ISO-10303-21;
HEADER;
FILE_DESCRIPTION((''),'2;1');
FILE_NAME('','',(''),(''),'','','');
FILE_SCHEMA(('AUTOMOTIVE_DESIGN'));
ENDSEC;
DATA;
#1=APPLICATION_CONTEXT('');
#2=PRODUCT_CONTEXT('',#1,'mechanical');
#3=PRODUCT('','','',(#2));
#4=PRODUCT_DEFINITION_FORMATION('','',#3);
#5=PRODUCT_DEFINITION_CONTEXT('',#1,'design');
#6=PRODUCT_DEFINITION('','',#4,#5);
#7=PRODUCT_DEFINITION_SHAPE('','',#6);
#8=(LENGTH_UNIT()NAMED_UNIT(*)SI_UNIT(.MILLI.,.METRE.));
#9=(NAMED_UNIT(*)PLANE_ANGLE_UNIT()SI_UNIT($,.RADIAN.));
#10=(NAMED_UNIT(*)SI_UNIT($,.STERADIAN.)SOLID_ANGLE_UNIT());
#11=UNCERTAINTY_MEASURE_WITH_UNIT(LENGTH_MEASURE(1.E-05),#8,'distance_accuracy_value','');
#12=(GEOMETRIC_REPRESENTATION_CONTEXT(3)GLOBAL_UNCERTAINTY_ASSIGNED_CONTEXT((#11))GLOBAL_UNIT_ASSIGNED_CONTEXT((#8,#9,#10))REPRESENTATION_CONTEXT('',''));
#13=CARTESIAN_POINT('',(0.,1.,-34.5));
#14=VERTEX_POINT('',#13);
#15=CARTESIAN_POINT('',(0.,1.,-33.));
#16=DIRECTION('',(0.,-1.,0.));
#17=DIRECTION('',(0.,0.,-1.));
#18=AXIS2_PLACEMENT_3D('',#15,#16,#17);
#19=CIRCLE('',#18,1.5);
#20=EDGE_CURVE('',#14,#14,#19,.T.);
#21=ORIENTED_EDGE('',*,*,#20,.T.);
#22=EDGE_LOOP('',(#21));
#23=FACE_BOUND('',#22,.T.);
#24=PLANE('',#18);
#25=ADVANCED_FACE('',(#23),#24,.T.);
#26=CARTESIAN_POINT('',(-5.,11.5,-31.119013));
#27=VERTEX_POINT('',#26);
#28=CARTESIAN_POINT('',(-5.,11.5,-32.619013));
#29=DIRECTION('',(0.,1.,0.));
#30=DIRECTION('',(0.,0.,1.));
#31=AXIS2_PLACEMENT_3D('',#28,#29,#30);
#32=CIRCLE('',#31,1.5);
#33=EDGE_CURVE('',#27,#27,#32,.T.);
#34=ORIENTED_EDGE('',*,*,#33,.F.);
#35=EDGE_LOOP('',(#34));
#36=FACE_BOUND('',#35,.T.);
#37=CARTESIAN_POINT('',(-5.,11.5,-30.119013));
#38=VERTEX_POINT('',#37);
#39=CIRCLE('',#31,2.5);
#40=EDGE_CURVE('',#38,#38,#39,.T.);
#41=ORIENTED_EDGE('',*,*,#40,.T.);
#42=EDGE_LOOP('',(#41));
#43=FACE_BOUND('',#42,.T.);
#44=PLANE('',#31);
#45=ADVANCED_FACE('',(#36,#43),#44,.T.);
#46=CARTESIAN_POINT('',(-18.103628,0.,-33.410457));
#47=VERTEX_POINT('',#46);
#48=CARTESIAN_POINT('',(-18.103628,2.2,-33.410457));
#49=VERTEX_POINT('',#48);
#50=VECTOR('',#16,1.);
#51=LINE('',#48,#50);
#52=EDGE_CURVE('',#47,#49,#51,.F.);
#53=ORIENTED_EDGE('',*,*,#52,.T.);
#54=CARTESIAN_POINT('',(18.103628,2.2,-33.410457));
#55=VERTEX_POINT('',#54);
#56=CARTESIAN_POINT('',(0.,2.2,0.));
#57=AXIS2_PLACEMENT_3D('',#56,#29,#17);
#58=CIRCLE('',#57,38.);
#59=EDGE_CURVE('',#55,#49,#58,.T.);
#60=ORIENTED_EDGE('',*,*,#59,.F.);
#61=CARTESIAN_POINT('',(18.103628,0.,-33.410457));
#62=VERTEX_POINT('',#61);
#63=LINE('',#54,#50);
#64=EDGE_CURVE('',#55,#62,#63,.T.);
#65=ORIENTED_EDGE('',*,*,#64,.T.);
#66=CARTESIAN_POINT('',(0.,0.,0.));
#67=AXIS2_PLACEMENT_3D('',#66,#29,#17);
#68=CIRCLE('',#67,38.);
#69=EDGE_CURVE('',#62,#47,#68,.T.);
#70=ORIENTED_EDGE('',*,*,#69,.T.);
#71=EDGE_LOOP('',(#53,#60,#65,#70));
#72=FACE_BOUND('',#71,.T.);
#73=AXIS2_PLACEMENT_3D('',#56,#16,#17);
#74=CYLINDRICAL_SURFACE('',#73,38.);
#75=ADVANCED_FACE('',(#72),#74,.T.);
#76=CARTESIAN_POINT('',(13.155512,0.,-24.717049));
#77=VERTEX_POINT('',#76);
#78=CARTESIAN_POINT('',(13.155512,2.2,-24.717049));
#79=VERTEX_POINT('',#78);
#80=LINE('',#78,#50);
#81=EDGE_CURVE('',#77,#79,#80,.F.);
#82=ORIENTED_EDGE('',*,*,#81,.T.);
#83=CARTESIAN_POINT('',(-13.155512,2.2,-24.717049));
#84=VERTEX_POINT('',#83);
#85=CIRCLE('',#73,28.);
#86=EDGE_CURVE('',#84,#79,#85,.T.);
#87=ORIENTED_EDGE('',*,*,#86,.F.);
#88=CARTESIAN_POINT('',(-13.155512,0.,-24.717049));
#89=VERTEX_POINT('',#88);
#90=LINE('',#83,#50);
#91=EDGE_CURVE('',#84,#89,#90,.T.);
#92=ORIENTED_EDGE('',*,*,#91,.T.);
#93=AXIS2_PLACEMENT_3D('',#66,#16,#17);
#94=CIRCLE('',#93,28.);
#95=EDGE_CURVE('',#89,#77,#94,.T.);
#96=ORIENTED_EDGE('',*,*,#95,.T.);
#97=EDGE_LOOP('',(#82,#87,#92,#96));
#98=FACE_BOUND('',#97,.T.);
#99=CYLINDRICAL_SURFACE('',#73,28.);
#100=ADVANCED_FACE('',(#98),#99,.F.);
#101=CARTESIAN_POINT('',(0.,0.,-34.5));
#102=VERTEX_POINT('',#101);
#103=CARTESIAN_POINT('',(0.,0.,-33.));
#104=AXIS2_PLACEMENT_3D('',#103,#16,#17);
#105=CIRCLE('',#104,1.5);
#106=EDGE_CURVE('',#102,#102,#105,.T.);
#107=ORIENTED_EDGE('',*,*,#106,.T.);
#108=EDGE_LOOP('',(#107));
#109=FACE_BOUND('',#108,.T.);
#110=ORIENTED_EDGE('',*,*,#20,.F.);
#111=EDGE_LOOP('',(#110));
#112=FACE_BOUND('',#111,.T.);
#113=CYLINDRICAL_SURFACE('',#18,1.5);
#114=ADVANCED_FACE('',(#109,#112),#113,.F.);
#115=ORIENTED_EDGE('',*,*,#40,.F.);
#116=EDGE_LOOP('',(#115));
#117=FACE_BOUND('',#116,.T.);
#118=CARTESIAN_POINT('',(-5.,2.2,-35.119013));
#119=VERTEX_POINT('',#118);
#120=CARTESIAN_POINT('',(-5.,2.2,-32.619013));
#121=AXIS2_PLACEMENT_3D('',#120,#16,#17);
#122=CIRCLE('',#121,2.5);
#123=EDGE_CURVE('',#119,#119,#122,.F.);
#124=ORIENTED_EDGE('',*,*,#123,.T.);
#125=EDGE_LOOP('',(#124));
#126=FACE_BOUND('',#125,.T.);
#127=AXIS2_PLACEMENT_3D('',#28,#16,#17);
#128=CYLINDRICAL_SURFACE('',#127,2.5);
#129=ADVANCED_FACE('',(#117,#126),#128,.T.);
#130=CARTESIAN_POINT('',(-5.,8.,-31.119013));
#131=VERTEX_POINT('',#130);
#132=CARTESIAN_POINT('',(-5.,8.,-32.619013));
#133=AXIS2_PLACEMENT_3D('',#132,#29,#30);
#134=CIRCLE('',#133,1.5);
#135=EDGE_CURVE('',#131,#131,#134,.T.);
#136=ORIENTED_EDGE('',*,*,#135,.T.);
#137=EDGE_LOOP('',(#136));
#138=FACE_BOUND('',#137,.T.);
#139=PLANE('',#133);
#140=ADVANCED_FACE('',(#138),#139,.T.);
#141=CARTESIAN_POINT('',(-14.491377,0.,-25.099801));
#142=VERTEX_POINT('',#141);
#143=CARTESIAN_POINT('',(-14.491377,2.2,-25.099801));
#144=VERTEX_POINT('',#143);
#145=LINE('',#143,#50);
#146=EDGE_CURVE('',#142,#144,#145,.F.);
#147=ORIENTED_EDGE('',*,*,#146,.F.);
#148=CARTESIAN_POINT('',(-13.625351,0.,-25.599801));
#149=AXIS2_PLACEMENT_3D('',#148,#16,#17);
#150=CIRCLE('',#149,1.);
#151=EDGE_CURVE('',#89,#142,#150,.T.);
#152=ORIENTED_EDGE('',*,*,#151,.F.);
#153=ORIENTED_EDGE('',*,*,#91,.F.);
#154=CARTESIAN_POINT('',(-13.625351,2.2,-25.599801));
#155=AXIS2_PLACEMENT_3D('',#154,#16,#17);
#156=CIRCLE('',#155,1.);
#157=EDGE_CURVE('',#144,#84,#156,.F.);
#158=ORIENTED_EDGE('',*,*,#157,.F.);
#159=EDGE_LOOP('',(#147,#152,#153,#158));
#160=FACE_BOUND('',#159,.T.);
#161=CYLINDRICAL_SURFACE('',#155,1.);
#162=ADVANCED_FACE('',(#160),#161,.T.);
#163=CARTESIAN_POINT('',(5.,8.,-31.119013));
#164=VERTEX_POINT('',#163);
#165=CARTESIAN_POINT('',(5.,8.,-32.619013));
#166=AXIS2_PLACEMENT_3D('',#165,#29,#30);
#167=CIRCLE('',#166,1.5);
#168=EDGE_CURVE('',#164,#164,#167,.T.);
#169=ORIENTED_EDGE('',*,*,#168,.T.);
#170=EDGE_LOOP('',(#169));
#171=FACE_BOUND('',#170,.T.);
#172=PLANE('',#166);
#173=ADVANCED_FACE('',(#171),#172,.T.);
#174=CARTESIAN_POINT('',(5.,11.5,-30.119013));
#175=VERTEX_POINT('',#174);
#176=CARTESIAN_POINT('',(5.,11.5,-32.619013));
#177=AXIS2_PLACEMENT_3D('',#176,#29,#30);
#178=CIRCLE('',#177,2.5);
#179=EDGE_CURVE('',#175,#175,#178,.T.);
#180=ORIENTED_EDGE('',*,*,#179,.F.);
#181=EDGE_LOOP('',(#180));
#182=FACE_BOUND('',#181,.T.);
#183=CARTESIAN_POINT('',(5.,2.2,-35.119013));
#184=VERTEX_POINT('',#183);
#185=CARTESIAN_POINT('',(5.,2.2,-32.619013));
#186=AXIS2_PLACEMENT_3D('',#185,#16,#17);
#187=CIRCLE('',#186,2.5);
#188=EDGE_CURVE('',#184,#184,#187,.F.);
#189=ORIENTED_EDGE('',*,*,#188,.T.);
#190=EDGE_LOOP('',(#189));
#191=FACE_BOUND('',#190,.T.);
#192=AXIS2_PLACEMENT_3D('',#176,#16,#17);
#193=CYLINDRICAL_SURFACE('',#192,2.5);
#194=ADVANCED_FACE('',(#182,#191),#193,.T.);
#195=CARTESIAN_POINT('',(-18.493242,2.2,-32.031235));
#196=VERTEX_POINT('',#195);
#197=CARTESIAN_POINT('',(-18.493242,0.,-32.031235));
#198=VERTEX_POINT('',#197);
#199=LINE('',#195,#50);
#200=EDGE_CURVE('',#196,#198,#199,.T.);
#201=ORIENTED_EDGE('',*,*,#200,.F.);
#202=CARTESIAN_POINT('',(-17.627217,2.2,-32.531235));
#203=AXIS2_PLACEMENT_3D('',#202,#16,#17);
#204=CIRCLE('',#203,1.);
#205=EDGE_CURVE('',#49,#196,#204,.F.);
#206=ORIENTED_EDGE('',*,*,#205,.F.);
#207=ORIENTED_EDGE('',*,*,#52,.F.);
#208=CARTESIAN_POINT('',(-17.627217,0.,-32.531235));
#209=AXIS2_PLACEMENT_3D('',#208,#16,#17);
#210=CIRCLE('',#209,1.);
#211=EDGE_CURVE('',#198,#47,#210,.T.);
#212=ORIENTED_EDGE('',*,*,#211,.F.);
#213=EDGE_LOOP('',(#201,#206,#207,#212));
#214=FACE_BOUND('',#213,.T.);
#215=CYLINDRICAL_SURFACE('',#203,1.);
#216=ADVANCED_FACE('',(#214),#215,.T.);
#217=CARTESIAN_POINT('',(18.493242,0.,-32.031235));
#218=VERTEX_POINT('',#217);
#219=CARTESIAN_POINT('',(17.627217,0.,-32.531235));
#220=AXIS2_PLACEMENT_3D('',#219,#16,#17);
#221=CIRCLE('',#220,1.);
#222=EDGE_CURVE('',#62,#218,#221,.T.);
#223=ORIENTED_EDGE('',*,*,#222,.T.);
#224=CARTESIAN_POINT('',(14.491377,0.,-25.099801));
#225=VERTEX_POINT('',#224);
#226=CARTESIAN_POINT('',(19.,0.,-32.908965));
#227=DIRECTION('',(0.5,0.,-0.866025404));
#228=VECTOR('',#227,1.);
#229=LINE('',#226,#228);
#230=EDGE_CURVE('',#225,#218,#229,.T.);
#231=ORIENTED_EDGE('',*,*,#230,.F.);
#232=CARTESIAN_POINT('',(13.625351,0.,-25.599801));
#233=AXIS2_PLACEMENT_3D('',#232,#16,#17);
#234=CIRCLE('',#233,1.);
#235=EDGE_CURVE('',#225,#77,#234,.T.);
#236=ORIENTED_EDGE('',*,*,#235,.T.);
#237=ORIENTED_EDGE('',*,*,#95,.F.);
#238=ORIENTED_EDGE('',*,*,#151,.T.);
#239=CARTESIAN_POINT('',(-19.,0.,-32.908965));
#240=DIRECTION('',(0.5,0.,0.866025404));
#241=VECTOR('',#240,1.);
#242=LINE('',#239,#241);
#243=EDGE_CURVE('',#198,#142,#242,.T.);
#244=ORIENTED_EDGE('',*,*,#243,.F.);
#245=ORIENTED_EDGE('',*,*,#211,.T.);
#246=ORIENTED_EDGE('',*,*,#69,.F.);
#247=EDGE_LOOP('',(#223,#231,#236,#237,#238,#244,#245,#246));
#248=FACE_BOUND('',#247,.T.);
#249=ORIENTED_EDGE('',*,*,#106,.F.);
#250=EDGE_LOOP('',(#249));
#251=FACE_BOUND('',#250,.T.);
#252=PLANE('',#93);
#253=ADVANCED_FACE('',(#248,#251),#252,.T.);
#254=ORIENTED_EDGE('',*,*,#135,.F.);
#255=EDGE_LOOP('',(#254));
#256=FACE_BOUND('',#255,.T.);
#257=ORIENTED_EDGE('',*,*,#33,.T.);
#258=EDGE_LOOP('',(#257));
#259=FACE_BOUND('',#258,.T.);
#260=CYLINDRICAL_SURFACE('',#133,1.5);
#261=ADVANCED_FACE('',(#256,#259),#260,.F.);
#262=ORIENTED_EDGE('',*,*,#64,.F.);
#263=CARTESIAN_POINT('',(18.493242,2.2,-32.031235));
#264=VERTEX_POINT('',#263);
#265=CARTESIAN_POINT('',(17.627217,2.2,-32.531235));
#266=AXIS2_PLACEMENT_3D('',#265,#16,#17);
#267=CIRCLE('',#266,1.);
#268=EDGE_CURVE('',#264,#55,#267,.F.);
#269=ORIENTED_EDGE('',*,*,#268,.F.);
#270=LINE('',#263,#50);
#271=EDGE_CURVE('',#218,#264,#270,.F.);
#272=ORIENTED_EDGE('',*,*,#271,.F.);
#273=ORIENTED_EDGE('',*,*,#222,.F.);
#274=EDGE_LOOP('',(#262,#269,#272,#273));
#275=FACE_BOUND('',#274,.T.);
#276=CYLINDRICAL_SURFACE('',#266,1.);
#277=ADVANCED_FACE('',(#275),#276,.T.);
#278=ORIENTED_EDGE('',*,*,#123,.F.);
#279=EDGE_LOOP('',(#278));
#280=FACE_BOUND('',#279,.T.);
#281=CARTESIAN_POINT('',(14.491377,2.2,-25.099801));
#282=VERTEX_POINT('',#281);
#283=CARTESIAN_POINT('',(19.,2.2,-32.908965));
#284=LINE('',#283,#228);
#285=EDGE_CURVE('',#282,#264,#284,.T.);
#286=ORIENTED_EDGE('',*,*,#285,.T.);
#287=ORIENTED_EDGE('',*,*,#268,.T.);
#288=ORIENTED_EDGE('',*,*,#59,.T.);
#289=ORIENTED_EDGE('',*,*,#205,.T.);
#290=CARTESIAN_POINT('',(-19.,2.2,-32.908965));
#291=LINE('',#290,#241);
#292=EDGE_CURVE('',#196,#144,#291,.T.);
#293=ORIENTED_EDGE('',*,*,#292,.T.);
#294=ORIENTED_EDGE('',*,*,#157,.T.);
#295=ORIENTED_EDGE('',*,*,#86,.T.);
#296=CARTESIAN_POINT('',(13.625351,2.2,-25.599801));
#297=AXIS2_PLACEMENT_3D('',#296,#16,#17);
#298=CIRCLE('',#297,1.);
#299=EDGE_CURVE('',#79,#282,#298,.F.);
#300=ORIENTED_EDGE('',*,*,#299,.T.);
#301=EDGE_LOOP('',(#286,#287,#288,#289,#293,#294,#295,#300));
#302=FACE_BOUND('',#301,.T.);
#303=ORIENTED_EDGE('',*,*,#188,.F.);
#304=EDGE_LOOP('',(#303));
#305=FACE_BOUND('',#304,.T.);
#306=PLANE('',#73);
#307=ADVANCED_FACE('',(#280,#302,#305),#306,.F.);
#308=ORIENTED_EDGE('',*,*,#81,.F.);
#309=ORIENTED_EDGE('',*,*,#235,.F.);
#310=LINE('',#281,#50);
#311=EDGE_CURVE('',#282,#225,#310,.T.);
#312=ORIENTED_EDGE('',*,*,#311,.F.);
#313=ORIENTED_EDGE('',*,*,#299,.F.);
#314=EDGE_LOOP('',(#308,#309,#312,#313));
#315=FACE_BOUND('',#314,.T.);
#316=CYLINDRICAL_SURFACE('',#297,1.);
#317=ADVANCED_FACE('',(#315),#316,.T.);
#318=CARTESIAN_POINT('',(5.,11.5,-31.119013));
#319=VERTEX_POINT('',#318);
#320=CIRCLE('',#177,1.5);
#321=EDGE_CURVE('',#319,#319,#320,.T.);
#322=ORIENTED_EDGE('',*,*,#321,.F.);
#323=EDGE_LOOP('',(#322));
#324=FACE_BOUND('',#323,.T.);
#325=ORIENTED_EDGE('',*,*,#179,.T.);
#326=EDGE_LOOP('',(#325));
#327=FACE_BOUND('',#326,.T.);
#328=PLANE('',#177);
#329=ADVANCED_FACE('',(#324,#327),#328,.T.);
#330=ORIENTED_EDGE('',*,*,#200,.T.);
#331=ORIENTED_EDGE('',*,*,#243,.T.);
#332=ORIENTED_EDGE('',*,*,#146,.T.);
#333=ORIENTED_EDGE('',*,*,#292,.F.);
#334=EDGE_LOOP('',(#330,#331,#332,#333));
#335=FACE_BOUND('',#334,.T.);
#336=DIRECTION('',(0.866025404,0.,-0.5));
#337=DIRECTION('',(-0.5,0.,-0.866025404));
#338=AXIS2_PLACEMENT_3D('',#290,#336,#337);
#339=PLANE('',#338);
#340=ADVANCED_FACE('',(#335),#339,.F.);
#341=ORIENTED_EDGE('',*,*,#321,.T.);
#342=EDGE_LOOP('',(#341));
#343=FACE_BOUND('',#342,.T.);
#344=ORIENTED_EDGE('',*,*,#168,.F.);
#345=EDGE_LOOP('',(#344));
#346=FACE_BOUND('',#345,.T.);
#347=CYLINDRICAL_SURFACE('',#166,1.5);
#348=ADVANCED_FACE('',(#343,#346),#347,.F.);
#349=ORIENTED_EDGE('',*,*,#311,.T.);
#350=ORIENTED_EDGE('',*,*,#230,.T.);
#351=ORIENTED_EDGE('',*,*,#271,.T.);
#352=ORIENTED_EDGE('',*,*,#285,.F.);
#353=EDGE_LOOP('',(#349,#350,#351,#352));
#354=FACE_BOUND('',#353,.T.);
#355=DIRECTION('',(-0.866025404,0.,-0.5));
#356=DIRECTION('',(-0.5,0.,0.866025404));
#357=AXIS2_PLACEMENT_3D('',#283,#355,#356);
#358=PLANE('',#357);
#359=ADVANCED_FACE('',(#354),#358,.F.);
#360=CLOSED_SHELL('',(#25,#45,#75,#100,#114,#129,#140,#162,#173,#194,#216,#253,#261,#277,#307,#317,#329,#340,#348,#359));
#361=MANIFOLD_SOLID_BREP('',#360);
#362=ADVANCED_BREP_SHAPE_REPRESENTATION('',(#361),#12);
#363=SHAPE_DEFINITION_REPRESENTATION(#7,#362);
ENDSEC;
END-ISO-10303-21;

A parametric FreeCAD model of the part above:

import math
import FreeCAD as App
import Part
import Sketcher
Q = App.Units.Quantity


def edges_at(feature, points):
    """Names of the edges that pass closest to the given points."""
    edges = feature.Shape.Edges
    near = lambda p: min(range(len(edges)), key=lambda i: edges[i].distToShape(Part.Vertex(*p))[0])
    return sorted({f"Edge{near(p) + 1}" for p in points})

doc = App.newDocument("Part")
body = doc.addObject("PartDesign::Body", "Body")

# Sketch on XZ plane
sketch1 = body.newObject("Sketcher::SketchObject", "Sketch")
sketch1.AttachmentSupport = (doc.getObject("XZ_Plane"), [""])
sketch1.MapMode = "FlatFace"
sketch1.addGeometry([
    Part.LineSegment(App.Vector(-19, -33, 0), App.Vector(-14, -24, 0)),
    Part.ArcOfCircle(Part.Circle(App.Vector(0, 0, 0), App.Vector(0, 0, 1), 28), math.radians(-120), math.radians(-60)),
    Part.LineSegment(App.Vector(14, -24, 0), App.Vector(19, -33, 0)),
    Part.ArcOfCircle(Part.Circle(App.Vector(0, 0, 0), App.Vector(0, 0, 1), 38), math.radians(-120), math.radians(-60)),
], False)
sketch1.addConstraint([
    Sketcher.Constraint("Coincident", 0, 2, 1, 1),
    Sketcher.Constraint("Coincident", 1, 2, 2, 1),
    Sketcher.Constraint("Coincident", 2, 2, 3, 2),
    Sketcher.Constraint("Coincident", 3, 1, 0, 1),
    Sketcher.Constraint("Coincident", 1, 3, -1, 1),
    Sketcher.Constraint("Coincident", 3, 3, -1, 1),
    Sketcher.Constraint("Horizontal", 0, 2, 1, 2),
    Sketcher.Constraint("Horizontal", 2, 2, 3, 1),
    Sketcher.Constraint("Radius", 1, Q("28 mm")),
    Sketcher.Constraint("Radius", 3, Q("38 mm")),
    Sketcher.Constraint("Angle", 0, Q("60 deg")),
    Sketcher.Constraint("DistanceX", 0, 2, -1, 1, Q("14 mm")),
])
pad1 = body.newObject("PartDesign::Pad", "Pad")
pad1.Profile = sketch1
pad1.Length = 2.2
pad1.Reversed = True

# Sketch on XZ plane
sketch2 = body.newObject("Sketcher::SketchObject", "Sketch001")
sketch2.AttachmentSupport = (doc.getObject("XZ_Plane"), [""])
sketch2.MapMode = "FlatFace"
sketch2.AttachmentOffset = App.Placement(App.Vector(0, 0, -2.2), App.Rotation())
sketch2.addGeometry([
    Part.Circle(App.Vector(-5, -32.6, 0), App.Vector(0, 0, 1), 2.5),
    Part.Circle(App.Vector(5, -32.6, 0), App.Vector(0, 0, 1), 2.5),
], False)
sketch2.addConstraint([
    Sketcher.Constraint("Equal", 0, 1),
    Sketcher.Constraint("Symmetric", 0, 3, 1, 3, -2),
    Sketcher.Constraint("Diameter", 0, Q("5 mm")),
    Sketcher.Constraint("DistanceX", 0, 3, -1, 1, Q("5 mm")),
    Sketcher.Constraint("DistanceY", 0, 3, -1, 1, Q("32.619013 mm")),
])
pad2 = body.newObject("PartDesign::Pad", "Pad001")
pad2.Profile = sketch2
pad2.Length = 9.3
pad2.Reversed = True

# Sketch on XZ plane
sketch3 = body.newObject("Sketcher::SketchObject", "Sketch002")
sketch3.AttachmentSupport = (doc.getObject("XZ_Plane"), [""])
sketch3.MapMode = "FlatFace"
sketch3.AttachmentOffset = App.Placement(App.Vector(0, 0, -11.5), App.Rotation())
sketch3.addGeometry([
    Part.Circle(App.Vector(-5, -32.6, 0), App.Vector(0, 0, 1), 1.5),
    Part.Circle(App.Vector(5, -32.6, 0), App.Vector(0, 0, 1), 1.5),
], False)
sketch3.addConstraint([
    Sketcher.Constraint("Equal", 0, 1),
    Sketcher.Constraint("Symmetric", 0, 3, 1, 3, -2),
    Sketcher.Constraint("Diameter", 0, Q("3 mm")),
    Sketcher.Constraint("DistanceX", 0, 3, -1, 1, Q("5 mm")),
    Sketcher.Constraint("DistanceY", 0, 3, -1, 1, Q("32.619013 mm")),
])
pocket1 = body.newObject("PartDesign::Pocket", "Pocket")
pocket1.Profile = sketch3
pocket1.Length = 3.5
pocket1.Reversed = True

# Sketch on XZ plane
sketch4 = body.newObject("Sketcher::SketchObject", "Sketch003")
sketch4.AttachmentSupport = (doc.getObject("XZ_Plane"), [""])
sketch4.MapMode = "FlatFace"
sketch4.addGeometry(Part.Circle(App.Vector(0, -33, 0), App.Vector(0, 0, 1), 1.5), False)
sketch4.addConstraint([
    Sketcher.Constraint("PointOnObject", 0, 3, -2),
    Sketcher.Constraint("Diameter", 0, Q("3 mm")),
    Sketcher.Constraint("DistanceY", 0, 3, -1, 1, Q("33 mm")),
])
pocket2 = body.newObject("PartDesign::Pocket", "Pocket001")
pocket2.Profile = sketch4
pocket2.Length = 1
doc.recompute()

fillet = body.newObject("PartDesign::Fillet", "Fillet")
fillet.Base = (pocket2, edges_at(pocket2, [
    (19, 1.1, -32.909),
    (14, 1.1, -24.249),
    (-14, 1.1, -24.249),
    (-19, 1.1, -32.909),
]))
fillet.Radius = 1

doc.recompute()
